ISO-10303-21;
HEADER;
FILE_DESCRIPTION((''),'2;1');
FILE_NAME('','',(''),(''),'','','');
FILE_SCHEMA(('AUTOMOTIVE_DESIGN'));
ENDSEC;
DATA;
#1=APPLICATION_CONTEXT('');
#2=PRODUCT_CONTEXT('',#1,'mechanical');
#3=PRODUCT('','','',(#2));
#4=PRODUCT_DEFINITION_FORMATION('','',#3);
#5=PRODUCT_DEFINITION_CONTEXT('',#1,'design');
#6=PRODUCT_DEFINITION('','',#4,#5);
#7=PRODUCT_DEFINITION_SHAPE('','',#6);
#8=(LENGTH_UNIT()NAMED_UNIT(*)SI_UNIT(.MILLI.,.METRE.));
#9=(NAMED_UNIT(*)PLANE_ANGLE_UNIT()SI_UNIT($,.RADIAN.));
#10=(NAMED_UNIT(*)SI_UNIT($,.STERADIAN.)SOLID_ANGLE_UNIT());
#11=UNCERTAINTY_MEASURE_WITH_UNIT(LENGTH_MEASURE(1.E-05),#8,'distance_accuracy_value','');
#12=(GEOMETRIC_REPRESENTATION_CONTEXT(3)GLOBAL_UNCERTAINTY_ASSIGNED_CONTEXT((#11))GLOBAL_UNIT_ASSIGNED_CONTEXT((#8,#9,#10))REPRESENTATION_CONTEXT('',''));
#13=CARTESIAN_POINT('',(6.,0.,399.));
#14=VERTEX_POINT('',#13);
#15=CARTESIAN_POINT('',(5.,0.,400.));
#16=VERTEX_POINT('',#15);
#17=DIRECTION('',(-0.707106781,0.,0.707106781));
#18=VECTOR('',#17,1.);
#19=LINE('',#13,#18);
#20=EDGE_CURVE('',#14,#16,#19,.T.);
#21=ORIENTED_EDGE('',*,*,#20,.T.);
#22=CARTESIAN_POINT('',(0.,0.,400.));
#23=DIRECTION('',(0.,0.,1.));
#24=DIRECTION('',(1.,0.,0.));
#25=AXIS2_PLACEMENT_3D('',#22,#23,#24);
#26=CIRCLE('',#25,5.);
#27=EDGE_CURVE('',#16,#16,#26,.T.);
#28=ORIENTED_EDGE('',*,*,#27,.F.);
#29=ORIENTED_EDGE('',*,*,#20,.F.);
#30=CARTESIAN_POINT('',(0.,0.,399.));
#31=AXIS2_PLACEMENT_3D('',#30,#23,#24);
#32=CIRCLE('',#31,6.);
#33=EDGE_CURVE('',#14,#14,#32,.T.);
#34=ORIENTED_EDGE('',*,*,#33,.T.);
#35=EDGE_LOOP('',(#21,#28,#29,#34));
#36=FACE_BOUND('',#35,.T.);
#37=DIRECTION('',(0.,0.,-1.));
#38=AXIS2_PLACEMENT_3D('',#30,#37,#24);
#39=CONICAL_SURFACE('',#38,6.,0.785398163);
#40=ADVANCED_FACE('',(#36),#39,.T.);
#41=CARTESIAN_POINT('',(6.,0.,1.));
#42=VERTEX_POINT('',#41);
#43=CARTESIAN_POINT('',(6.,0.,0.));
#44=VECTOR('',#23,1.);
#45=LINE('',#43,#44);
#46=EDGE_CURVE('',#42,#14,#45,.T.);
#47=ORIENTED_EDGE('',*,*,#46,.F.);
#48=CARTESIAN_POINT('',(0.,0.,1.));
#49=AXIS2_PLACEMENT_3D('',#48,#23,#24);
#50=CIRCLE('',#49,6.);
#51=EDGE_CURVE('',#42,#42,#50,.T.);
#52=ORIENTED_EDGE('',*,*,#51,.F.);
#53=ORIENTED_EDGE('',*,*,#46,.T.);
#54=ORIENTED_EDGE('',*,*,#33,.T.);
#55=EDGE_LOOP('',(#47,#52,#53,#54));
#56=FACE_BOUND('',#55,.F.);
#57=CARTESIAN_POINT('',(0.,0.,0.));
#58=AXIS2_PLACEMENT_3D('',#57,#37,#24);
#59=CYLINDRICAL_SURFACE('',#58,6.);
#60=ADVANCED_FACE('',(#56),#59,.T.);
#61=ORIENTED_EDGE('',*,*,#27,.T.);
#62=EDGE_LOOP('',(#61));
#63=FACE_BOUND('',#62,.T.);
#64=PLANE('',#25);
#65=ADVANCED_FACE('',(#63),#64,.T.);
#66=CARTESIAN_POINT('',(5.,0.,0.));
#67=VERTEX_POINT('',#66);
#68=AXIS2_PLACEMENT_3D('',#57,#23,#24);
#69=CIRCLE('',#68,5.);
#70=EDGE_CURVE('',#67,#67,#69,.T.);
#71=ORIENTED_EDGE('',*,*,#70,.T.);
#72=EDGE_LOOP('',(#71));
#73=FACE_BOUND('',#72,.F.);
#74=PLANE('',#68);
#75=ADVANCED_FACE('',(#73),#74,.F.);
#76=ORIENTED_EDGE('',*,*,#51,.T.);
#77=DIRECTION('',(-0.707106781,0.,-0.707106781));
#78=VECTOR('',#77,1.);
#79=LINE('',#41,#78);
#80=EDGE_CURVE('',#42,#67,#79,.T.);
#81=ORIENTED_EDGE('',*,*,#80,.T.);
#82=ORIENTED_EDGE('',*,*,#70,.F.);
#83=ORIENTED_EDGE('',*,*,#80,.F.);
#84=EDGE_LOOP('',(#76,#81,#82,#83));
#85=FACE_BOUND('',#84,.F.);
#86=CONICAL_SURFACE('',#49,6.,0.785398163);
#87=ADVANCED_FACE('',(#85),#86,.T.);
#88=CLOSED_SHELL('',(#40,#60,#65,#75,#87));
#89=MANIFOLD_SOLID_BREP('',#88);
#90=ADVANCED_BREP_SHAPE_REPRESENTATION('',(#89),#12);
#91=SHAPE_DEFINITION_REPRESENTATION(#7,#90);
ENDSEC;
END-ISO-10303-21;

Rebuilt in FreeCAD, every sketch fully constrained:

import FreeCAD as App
import Part
import Sketcher
Q = App.Units.Quantity


def edges_at(feature, points):
    """Names of the edges that pass closest to the given points."""
    edges = feature.Shape.Edges
    near = lambda p: min(range(len(edges)), key=lambda i: edges[i].distToShape(Part.Vertex(*p))[0])
    return sorted({f"Edge{near(p) + 1}" for p in points})

doc = App.newDocument("Part")
body = doc.addObject("PartDesign::Body", "Body")

# Sketch on XY plane
sketch1 = body.newObject("Sketcher::SketchObject", "Sketch")
sketch1.AttachmentSupport = (doc.getObject("XY_Plane"), [""])
sketch1.MapMode = "FlatFace"
sketch1.addGeometry(Part.Circle(App.Vector(0, 0, 0), App.Vector(0, 0, 1), 6), False)
sketch1.addConstraint([
    Sketcher.Constraint("Coincident", 0, 3, -1, 1),
    Sketcher.Constraint("Diameter", 0, Q("12 mm")),
])
pad1 = body.newObject("PartDesign::Pad", "Pad")
pad1.Profile = sketch1
pad1.Length = 400
doc.recompute()

chamfer = body.newObject("PartDesign::Chamfer", "Chamfer")
chamfer.Base = (pad1, edges_at(pad1, [(-6, 0, 400), (-6, 0, 0)]))
chamfer.Size = 1

doc.recompute()
